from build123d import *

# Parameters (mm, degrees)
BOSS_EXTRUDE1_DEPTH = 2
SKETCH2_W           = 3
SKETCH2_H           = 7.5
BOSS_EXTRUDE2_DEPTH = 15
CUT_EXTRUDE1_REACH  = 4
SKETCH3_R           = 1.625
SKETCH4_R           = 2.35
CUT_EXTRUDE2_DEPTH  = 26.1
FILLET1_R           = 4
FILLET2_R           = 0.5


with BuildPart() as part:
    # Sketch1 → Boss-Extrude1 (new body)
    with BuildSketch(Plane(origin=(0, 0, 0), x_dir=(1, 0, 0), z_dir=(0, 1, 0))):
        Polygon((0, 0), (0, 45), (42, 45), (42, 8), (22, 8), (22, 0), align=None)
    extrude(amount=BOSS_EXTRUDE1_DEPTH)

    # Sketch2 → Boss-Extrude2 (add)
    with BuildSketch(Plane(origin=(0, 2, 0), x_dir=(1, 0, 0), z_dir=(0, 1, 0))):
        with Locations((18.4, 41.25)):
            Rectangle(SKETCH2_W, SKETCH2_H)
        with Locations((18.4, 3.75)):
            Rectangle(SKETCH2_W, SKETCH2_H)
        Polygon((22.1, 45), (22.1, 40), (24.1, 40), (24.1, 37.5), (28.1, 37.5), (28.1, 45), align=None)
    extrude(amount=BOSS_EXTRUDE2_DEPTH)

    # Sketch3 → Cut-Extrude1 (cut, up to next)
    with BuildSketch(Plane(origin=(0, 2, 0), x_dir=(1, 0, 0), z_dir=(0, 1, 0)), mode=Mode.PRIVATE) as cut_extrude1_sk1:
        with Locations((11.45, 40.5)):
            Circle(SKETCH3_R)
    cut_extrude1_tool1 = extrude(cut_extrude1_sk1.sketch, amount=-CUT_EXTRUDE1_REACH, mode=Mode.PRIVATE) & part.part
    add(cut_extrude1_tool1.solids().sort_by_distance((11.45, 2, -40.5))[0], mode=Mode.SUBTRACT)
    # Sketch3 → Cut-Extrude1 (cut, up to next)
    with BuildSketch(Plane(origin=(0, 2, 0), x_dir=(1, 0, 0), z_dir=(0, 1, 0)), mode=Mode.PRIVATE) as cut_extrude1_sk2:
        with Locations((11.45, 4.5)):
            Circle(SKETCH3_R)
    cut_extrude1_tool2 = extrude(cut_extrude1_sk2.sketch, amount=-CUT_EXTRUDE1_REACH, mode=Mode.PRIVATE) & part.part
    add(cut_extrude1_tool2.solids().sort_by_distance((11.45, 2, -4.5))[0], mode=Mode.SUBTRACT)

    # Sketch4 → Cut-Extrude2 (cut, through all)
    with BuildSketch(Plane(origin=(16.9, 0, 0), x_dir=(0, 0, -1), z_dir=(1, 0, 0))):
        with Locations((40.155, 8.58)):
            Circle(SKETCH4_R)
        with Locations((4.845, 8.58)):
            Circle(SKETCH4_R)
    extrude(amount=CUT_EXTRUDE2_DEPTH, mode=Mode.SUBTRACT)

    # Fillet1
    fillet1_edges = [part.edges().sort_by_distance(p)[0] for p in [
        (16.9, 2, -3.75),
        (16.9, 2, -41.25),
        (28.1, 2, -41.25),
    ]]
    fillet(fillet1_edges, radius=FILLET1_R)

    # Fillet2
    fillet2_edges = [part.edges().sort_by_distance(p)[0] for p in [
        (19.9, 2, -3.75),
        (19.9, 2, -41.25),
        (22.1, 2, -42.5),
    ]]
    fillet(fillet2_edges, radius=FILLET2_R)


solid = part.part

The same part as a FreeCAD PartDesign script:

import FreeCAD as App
import Part
import Sketcher
from FreeCAD import Vector
Q = App.Units.Quantity


def edges_at(feature, points):
    """Names of the edges that pass closest to the given points."""
    edges = feature.Shape.Edges
    near = lambda p: min(range(len(edges)), key=lambda i: edges[i].distToShape(Part.Vertex(*p))[0])
    return sorted({f"Edge{near(p) + 1}" for p in points})


def add_polygon(sketch, points):
    """Adds a closed chain of lines whose ends are joined by coincident constraints."""
    first, n = sketch.GeometryCount, len(points)
    for a, b in zip(points, points[1:] + points[:1]):
        sketch.addGeometry(Part.LineSegment(App.Vector(*a, 0), App.Vector(*b, 0)), False)
    for i in range(n):
        sketch.addConstraint(Sketcher.Constraint("Coincident", first + i, 2, first + (i + 1) % n, 1))

doc = App.newDocument("Part")
body = doc.addObject("PartDesign::Body", "Body")

sketch1 = body.newObject("Sketcher::SketchObject", "Sketch")
sketch1.AttachmentSupport = (doc.getObject("XZ_Plane"), [""])
sketch1.MapMode = "FlatFace"
add_polygon(sketch1, [(0, -45), (0, 0), (22, 0), (22, -8), (42, -8), (42, -45)])
sketch1.addConstraint(Sketcher.Constraint("Vertical", 0))
sketch1.addConstraint(Sketcher.Constraint("Horizontal", 1))
sketch1.addConstraint(Sketcher.Constraint("Vertical", 2))
sketch1.addConstraint(Sketcher.Constraint("Horizontal", 3))
sketch1.addConstraint(Sketcher.Constraint("Vertical", 4))
sketch1.addConstraint(Sketcher.Constraint("Horizontal", 5))
sketch1.addConstraint(Sketcher.Constraint("Coincident", 0, 2, -1, 1))
sketch1.addConstraint(Sketcher.Constraint("DistanceX", 1, 1, 1, 2, Q("22 mm")))
sketch1.addConstraint(Sketcher.Constraint("DistanceX", 3, 1, 3, 2, Q("20 mm")))
sketch1.addConstraint(Sketcher.Constraint("DistanceY", 0, 1, 0, 2, Q("45 mm")))
sketch1.addConstraint(Sketcher.Constraint("DistanceY", 2, 2, 2, 1, Q("8 mm")))
pad1 = body.newObject("PartDesign::Pad", "Pad")
pad1.Profile = sketch1
pad1.Length = 2
pad1.Reversed = True

sketch2 = body.newObject("Sketcher::SketchObject", "Sketch001")
sketch2.AttachmentSupport = (doc.getObject("XZ_Plane"), [""])
sketch2.MapMode = "FlatFace"
sketch2.AttachmentOffset = App.Placement(Vector(0, 0, -2), App.Rotation())
add_polygon(sketch2, [(16.9, -45), (16.9, -37.5), (19.9, -37.5), (19.9, -45)])
add_polygon(sketch2, [(16.9, -7.5), (16.9, 0), (19.9, 0), (19.9, -7.5)])
add_polygon(sketch2, [(22.1, -45), (22.1, -40), (24.1, -40), (24.1, -37.5), (28.1, -37.5), (28.1, -45)])
sketch2.addConstraint(Sketcher.Constraint("Vertical", 0))
sketch2.addConstraint(Sketcher.Constraint("Horizontal", 1))
sketch2.addConstraint(Sketcher.Constraint("Vertical", 2))
sketch2.addConstraint(Sketcher.Constraint("Horizontal", 3))
sketch2.addConstraint(Sketcher.Constraint("Vertical", 4))
sketch2.addConstraint(Sketcher.Constraint("Horizontal", 5))
sketch2.addConstraint(Sketcher.Constraint("Vertical", 6))
sketch2.addConstraint(Sketcher.Constraint("Horizontal", 7))
sketch2.addConstraint(Sketcher.Constraint("Vertical", 8))
sketch2.addConstraint(Sketcher.Constraint("Horizontal", 9))
sketch2.addConstraint(Sketcher.Constraint("Vertical", 10))
sketch2.addConstraint(Sketcher.Constraint("Horizontal", 11))
sketch2.addConstraint(Sketcher.Constraint("Vertical", 12))
sketch2.addConstraint(Sketcher.Constraint("Horizontal", 13))
sketch2.addConstraint(Sketcher.Constraint("PointOnObject", 4, 2, -1))
sketch2.addConstraint(Sketcher.Constraint("Horizontal", 1, 2, 10, 2))
sketch2.addConstraint(Sketcher.Constraint("Horizontal", 3, 2, 12, 2))
sketch2.addConstraint(Sketcher.Constraint("Vertical", 3, 2, 4, 2))
sketch2.addConstraint(Sketcher.Constraint("Vertical", 2, 2, 5, 2))
sketch2.addConstraint(Sketcher.Constraint("Equal", 2, 4))
sketch2.addConstraint(Sketcher.Constraint("DistanceX", 1, 1, 1, 2, Q("3 mm")))
sketch2.addConstraint(Sketcher.Constraint("DistanceX", 9, 1, 9, 2, Q("2 mm")))
sketch2.addConstraint(Sketcher.Constraint("DistanceX", 11, 1, 11, 2, Q("4 mm")))
sketch2.addConstraint(Sketcher.Constraint("DistanceY", 8, 1, 8, 2, Q("5 mm")))
sketch2.addConstraint(Sketcher.Constraint("DistanceY", 0, 1, 0, 2, Q("7.5 mm")))
sketch2.addConstraint(Sketcher.Constraint("DistanceY", 2, 2, -1, 1, Q("45 mm")))
sketch2.addConstraint(Sketcher.Constraint("DistanceX", -1, 1, 0, 2, Q("16.9 mm")))
sketch2.addConstraint(Sketcher.Constraint("DistanceX", -1, 1, 8, 2, Q("22.1 mm")))
pad2 = body.newObject("PartDesign::Pad", "Pad001")
pad2.Profile = sketch2
pad2.Length = 15
pad2.Reversed = True

sketch3 = body.newObject("Sketcher::SketchObject", "Sketch002")
sketch3.AttachmentSupport = (doc.getObject("XZ_Plane"), [""])
sketch3.MapMode = "FlatFace"
sketch3.AttachmentOffset = App.Placement(Vector(0, 0, -2), App.Rotation())
sketch3.addGeometry(Part.Circle(Vector(11.4, -40.5, 0), Vector(0, 0, 1), 1.6), False)
sketch3.addConstraint(Sketcher.Constraint("Diameter", 0, Q("3.25 mm")))
sketch3.addConstraint(Sketcher.Constraint("DistanceY", 0, 3, -1, 1, Q("40.5 mm")))
sketch3.addConstraint(Sketcher.Constraint("DistanceX", -1, 1, 0, 3, Q("11.45 mm")))
pocket1 = body.newObject("PartDesign::Pocket", "Pocket")
pocket1.Profile = sketch3
pocket1.Type = "UpToFirst"
pocket1.Reversed = True

sketch4 = body.newObject("Sketcher::SketchObject", "Sketch003")
sketch4.AttachmentSupport = (doc.getObject("XZ_Plane"), [""])
sketch4.MapMode = "FlatFace"
sketch4.AttachmentOffset = App.Placement(Vector(0, 0, -2), App.Rotation())
sketch4.addGeometry(Part.Circle(Vector(11.4, -4.5, 0), Vector(0, 0, 1), 1.6), False)
sketch4.addConstraint(Sketcher.Constraint("Diameter", 0, Q("3.25 mm")))
sketch4.addConstraint(Sketcher.Constraint("DistanceY", 0, 3, -1, 1, Q("4.5 mm")))
sketch4.addConstraint(Sketcher.Constraint("DistanceX", -1, 1, 0, 3, Q("11.45 mm")))
pocket2 = body.newObject("PartDesign::Pocket", "Pocket001")
pocket2.Profile = sketch4
pocket2.Type = "UpToFirst"
pocket2.Reversed = True

sketch5 = body.newObject("Sketcher::SketchObject", "Sketch004")
sketch5.AttachmentSupport = (doc.getObject("YZ_Plane"), [""])
sketch5.MapMode = "FlatFace"
sketch5.AttachmentOffset = App.Placement(Vector(0, 0, 16.9), App.Rotation())
sketch5.addGeometry(Part.Circle(Vector(8.6, -40.2, 0), Vector(0, 0, 1), 2.4), False)
sketch5.addGeometry(Part.Circle(Vector(8.6, -4.8, 0), Vector(0, 0, 1), 2.4), False)
sketch5.addConstraint(Sketcher.Constraint("Equal", 0, 1))
sketch5.addConstraint(Sketcher.Constraint("Vertical", 0, 3, 1, 3))
sketch5.addConstraint(Sketcher.Constraint("Diameter", 0, Q("4.7 mm")))
sketch5.addConstraint(Sketcher.Constraint("DistanceX", -1, 1, 0, 3, Q("8.58 mm")))
sketch5.addConstraint(Sketcher.Constraint("DistanceY", 0, 3, 1, 3, Q("35.31 mm")))
sketch5.addConstraint(Sketcher.Constraint("DistanceY", 0, 3, -1, 1, Q("40.155 mm")))
pocket3 = body.newObject("PartDesign::Pocket", "Pocket002")
pocket3.Profile = sketch5
pocket3.Type = "ThroughAll"
pocket3.Reversed = True
doc.recompute()

fillet = body.newObject("PartDesign::Fillet", "Fillet")
fillet.Base = (pocket3, edges_at(pocket3, [(16.9, 2, -3.75), (16.9, 2, -41.25), (28.1, 2, -41.25)]))
fillet.Radius = 4
doc.recompute()

fillet2 = body.newObject("PartDesign::Fillet", "Fillet001")
fillet2.Base = (fillet, edges_at(fillet, [(19.9, 2, -3.75), (19.9, 2, -41.25), (22.1, 2, -42.5)]))
fillet2.Radius = 0.5

doc.recompute()
